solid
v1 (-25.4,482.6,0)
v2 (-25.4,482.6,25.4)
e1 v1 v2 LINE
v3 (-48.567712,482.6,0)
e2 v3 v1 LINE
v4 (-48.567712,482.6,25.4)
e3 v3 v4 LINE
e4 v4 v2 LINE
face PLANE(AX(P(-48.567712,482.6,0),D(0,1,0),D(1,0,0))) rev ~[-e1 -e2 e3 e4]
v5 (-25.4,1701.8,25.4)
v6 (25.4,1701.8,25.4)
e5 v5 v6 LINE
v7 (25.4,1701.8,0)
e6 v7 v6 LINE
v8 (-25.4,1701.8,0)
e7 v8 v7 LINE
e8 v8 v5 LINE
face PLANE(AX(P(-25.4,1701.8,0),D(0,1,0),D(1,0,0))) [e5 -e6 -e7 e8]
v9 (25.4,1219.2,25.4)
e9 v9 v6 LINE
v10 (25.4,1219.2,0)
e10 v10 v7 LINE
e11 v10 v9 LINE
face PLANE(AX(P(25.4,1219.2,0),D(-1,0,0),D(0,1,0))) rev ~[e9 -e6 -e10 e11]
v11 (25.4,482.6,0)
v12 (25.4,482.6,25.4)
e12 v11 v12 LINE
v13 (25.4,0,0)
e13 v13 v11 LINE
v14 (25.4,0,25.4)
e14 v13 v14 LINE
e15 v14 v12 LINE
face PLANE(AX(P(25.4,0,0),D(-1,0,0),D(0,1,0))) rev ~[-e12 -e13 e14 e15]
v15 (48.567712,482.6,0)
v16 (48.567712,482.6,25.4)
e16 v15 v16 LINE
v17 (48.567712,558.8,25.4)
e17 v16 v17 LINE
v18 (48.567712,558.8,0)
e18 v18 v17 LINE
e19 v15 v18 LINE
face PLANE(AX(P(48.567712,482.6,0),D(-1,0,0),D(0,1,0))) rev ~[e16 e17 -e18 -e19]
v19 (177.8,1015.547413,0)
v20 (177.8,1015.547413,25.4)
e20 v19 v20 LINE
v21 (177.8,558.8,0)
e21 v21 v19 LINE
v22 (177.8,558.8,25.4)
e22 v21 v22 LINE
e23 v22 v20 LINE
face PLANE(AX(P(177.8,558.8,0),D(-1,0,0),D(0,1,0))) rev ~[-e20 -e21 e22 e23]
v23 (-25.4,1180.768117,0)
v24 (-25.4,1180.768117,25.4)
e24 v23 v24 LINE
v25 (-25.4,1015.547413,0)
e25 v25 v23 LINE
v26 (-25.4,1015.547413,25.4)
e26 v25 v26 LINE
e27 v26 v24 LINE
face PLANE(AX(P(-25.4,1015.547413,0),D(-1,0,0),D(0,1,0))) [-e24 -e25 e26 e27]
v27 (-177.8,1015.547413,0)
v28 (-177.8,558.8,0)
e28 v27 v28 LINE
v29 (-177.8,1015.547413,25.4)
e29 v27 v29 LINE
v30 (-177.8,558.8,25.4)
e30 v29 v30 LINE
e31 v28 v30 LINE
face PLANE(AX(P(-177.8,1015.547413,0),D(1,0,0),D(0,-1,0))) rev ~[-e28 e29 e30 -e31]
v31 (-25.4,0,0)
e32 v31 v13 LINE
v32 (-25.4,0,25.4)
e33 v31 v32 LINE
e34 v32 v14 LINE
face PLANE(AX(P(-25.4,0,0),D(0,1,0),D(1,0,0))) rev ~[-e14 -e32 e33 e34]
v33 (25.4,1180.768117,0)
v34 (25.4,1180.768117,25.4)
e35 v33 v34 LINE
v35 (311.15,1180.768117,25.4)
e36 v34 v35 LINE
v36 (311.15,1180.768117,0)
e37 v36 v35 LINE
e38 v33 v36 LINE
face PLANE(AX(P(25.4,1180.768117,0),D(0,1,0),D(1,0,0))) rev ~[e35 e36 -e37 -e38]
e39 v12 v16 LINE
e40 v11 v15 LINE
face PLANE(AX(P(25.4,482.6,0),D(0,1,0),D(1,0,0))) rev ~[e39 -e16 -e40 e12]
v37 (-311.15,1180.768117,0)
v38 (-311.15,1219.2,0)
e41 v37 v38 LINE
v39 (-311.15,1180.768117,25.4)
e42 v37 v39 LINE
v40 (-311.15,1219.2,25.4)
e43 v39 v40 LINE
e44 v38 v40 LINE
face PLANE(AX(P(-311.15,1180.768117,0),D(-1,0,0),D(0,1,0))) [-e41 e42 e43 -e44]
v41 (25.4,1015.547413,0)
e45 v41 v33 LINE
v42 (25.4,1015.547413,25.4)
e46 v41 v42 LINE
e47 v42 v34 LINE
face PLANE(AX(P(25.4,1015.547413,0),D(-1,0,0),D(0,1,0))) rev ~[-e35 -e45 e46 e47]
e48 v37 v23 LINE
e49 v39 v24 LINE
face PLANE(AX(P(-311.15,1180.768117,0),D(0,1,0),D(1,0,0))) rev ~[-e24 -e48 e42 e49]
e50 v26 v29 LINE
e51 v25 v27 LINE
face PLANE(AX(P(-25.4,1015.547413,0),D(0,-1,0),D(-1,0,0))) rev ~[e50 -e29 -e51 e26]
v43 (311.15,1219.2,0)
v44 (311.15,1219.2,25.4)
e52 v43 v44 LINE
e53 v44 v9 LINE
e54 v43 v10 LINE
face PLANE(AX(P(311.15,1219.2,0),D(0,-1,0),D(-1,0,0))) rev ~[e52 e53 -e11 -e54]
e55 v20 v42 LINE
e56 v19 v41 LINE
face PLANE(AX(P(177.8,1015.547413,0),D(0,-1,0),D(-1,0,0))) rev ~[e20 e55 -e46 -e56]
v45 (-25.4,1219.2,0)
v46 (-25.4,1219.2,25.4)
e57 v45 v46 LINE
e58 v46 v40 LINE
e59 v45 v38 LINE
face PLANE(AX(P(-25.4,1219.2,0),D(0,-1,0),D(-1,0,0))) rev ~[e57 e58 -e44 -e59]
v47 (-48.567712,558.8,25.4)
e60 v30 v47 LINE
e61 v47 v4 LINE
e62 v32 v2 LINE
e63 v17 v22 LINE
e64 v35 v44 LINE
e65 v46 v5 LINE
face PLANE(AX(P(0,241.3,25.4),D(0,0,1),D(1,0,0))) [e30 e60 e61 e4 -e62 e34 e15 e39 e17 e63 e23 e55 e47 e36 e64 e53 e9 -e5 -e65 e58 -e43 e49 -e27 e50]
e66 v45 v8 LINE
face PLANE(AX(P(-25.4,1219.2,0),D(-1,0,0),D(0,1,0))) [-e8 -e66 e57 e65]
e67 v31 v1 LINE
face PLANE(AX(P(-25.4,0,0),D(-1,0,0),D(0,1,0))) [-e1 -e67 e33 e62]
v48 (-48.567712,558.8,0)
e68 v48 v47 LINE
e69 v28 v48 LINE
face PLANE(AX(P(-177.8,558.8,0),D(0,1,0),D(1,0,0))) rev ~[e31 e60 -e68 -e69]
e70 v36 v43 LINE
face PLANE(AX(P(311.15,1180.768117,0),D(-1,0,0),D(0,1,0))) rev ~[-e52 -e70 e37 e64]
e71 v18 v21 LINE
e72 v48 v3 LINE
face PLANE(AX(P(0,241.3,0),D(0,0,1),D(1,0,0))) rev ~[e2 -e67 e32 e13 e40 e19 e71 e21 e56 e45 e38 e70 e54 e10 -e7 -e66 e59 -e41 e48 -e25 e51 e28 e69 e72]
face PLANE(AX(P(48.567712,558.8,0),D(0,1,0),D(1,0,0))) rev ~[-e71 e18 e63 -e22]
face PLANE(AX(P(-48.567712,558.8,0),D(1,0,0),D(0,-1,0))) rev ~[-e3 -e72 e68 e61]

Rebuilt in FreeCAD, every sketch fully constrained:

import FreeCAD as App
import Part
import Sketcher
from FreeCAD import Vector
Q = App.Units.Quantity

doc = App.newDocument("Part")
body = doc.addObject("PartDesign::Body", "Body")

# Sketch on XY plane
sketch1 = doc.addObject("Sketcher::SketchObject", "Sketch")
body.addObject(sketch1)
sketch1.AttachmentSupport = (doc.XY_Plane, [""])
sketch1.MapMode = "FlatFace"
sketch1.addGeometry(Part.LineSegment(Vector(49, 483, 0), Vector(49, 559, 0)), False)
sketch1.addGeometry(Part.LineSegment(Vector(49, 559, 0), Vector(178, 559, 0)), False)
sketch1.addGeometry(Part.LineSegment(Vector(178, 559, 0), Vector(178, 1016, 0)), False)
sketch1.addGeometry(Part.LineSegment(Vector(178, 1016, 0), Vector(25, 1016, 0)), False)
sketch1.addGeometry(Part.LineSegment(Vector(25, 1016, 0), Vector(25, 1181, 0)), False)
sketch1.addGeometry(Part.LineSegment(Vector(25, 1181, 0), Vector(311, 1181, 0)), False)
sketch1.addGeometry(Part.LineSegment(Vector(311, 1181, 0), Vector(311, 1219, 0)), False)
sketch1.addGeometry(Part.LineSegment(Vector(311, 1219, 0), Vector(25, 1219, 0)), False)
sketch1.addGeometry(Part.LineSegment(Vector(25, 1219, 0), Vector(25, 1702, 0)), False)
sketch1.addGeometry(Part.LineSegment(Vector(25, 1702, 0), Vector(-25, 1702, 0)), False)
sketch1.addGeometry(Part.LineSegment(Vector(-25, 1702, 0), Vector(-25, 1219, 0)), False)
sketch1.addGeometry(Part.LineSegment(Vector(-25, 1219, 0), Vector(-311, 1219, 0)), False)
sketch1.addGeometry(Part.LineSegment(Vector(-311, 1219, 0), Vector(-311, 1181, 0)), False)
sketch1.addGeometry(Part.LineSegment(Vector(-311, 1181, 0), Vector(-25, 1181, 0)), False)
sketch1.addGeometry(Part.LineSegment(Vector(-25, 1181, 0), Vector(-25, 1016, 0)), False)
sketch1.addGeometry(Part.LineSegment(Vector(-25, 1016, 0), Vector(-178, 1016, 0)), False)
sketch1.addGeometry(Part.LineSegment(Vector(-178, 1016, 0), Vector(-178, 559, 0)), False)
sketch1.addGeometry(Part.LineSegment(Vector(-178, 559, 0), Vector(-49, 559, 0)), False)
sketch1.addGeometry(Part.LineSegment(Vector(-49, 559, 0), Vector(-49, 483, 0)), False)
sketch1.addGeometry(Part.LineSegment(Vector(-49, 483, 0), Vector(-25, 483, 0)), False)
sketch1.addGeometry(Part.LineSegment(Vector(-25, 483, 0), Vector(-25, 0, 0)), False)
sketch1.addGeometry(Part.LineSegment(Vector(-25, 0, 0), Vector(25, 0, 0)), False)
sketch1.addGeometry(Part.LineSegment(Vector(25, 0, 0), Vector(25, 483, 0)), False)
sketch1.addGeometry(Part.LineSegment(Vector(25, 483, 0), Vector(49, 483, 0)), False)
sketch1.addConstraint(Sketcher.Constraint("Coincident", 0, 2, 1, 1))
sketch1.addConstraint(Sketcher.Constraint("Coincident", 1, 2, 2, 1))
sketch1.addConstraint(Sketcher.Constraint("Coincident", 2, 2, 3, 1))
sketch1.addConstraint(Sketcher.Constraint("Coincident", 3, 2, 4, 1))
sketch1.addConstraint(Sketcher.Constraint("Coincident", 4, 2, 5, 1))
sketch1.addConstraint(Sketcher.Constraint("Coincident", 5, 2, 6, 1))
sketch1.addConstraint(Sketcher.Constraint("Coincident", 6, 2, 7, 1))
sketch1.addConstraint(Sketcher.Constraint("Coincident", 7, 2, 8, 1))
sketch1.addConstraint(Sketcher.Constraint("Coincident", 8, 2, 9, 1))
sketch1.addConstraint(Sketcher.Constraint("Coincident", 9, 2, 10, 1))
sketch1.addConstraint(Sketcher.Constraint("Coincident", 10, 2, 11, 1))
sketch1.addConstraint(Sketcher.Constraint("Coincident", 11, 2, 12, 1))
sketch1.addConstraint(Sketcher.Constraint("Coincident", 12, 2, 13, 1))
sketch1.addConstraint(Sketcher.Constraint("Coincident", 13, 2, 14, 1))
sketch1.addConstraint(Sketcher.Constraint("Coincident", 14, 2, 15, 1))
sketch1.addConstraint(Sketcher.Constraint("Coincident", 15, 2, 16, 1))
sketch1.addConstraint(Sketcher.Constraint("Coincident", 16, 2, 17, 1))
sketch1.addConstraint(Sketcher.Constraint("Coincident", 17, 2, 18, 1))
sketch1.addConstraint(Sketcher.Constraint("Coincident", 18, 2, 19, 1))
sketch1.addConstraint(Sketcher.Constraint("Coincident", 19, 2, 20, 1))
sketch1.addConstraint(Sketcher.Constraint("Coincident", 20, 2, 21, 1))
sketch1.addConstraint(Sketcher.Constraint("Coincident", 21, 2, 22, 1))
sketch1.addConstraint(Sketcher.Constraint("Coincident", 22, 2, 23, 1))
sketch1.addConstraint(Sketcher.Constraint("Coincident", 23, 2, 0, 1))
sketch1.addConstraint(Sketcher.Constraint("Vertical", 0))
sketch1.addConstraint(Sketcher.Constraint("Horizontal", 1))
sketch1.addConstraint(Sketcher.Constraint("Vertical", 2))
sketch1.addConstraint(Sketcher.Constraint("Horizontal", 3))
sketch1.addConstraint(Sketcher.Constraint("Vertical", 4))
sketch1.addConstraint(Sketcher.Constraint("Horizontal", 5))
sketch1.addConstraint(Sketcher.Constraint("Vertical", 6))
sketch1.addConstraint(Sketcher.Constraint("Horizontal", 7))
sketch1.addConstraint(Sketcher.Constraint("Vertical", 8))
sketch1.addConstraint(Sketcher.Constraint("Horizontal", 9))
sketch1.addConstraint(Sketcher.Constraint("Vertical", 10))
sketch1.addConstraint(Sketcher.Constraint("Horizontal", 11))
sketch1.addConstraint(Sketcher.Constraint("Vertical", 12))
sketch1.addConstraint(Sketcher.Constraint("Horizontal", 13))
sketch1.addConstraint(Sketcher.Constraint("Vertical", 14))
sketch1.addConstraint(Sketcher.Constraint("Horizontal", 15))
sketch1.addConstraint(Sketcher.Constraint("Vertical", 16))
sketch1.addConstraint(Sketcher.Constraint("Horizontal", 17))
sketch1.addConstraint(Sketcher.Constraint("Vertical", 18))
sketch1.addConstraint(Sketcher.Constraint("Horizontal", 19))
sketch1.addConstraint(Sketcher.Constraint("Vertical", 20))
sketch1.addConstraint(Sketcher.Constraint("Horizontal", 21))
sketch1.addConstraint(Sketcher.Constraint("Vertical", 22))
sketch1.addConstraint(Sketcher.Constraint("Horizontal", 23))
sketch1.addConstraint(Sketcher.Constraint("Symmetric", 20, 2, 21, 2, -1, 1))
sketch1.addConstraint(Sketcher.Constraint("Symmetric", 7, 2, 10, 2, -2))
sketch1.addConstraint(Sketcher.Constraint("Symmetric", 5, 2, 12, 2, -2))
sketch1.addConstraint(Sketcher.Constraint("Symmetric", 3, 2, 14, 2, -2))
sketch1.addConstraint(Sketcher.Constraint("Symmetric", 1, 2, 16, 2, -2))
sketch1.addConstraint(Sketcher.Constraint("Symmetric", 18, 2, 23, 2, -2))
sketch1.addConstraint(Sketcher.Constraint("Vertical", 4, 2, 7, 2))
sketch1.addConstraint(Sketcher.Constraint("Vertical", 14, 2, 19, 2))
sketch1.addConstraint(Sketcher.Constraint("Equal", 10, 20))
sketch1.addConstraint(Sketcher.Constraint("DistanceX", 3, 2, 3, 1, Q("6 in")))
sketch1.addConstraint(Sketcher.Constraint("DistanceX", 9, 2, 9, 1, Q("2 in")))
sketch1.addConstraint(Sketcher.Constraint("DistanceY", 0, 1, 0, 2, Q("3 in")))
sketch1.addConstraint(Sketcher.Constraint("DistanceY", 8, 1, 8, 2, Q("19 in")))
sketch1.addConstraint(Sketcher.Constraint("DistanceY", -1, 1, 6, 2, Q("48 in")))
sketch1.addConstraint(Sketcher.Constraint("DistanceX", 5, 1, 5, 2, Q("11.25 in")))
sketch1.addConstraint(Sketcher.Constraint("DistanceX", 1, 1, 1, 2, 129.232288))
sketch1.addConstraint(Sketcher.Constraint("DistanceY", 2, 1, 2, 2, 456.747413))
sketch1.addConstraint(Sketcher.Constraint("DistanceY", 4, 1, 4, 2, 165.220704))
pad1 = doc.addObject("PartDesign::Pad", "Pad")
body.addObject(pad1)
pad1.Profile = sketch1
pad1.Length = Q("1 in")

doc.recompute()
